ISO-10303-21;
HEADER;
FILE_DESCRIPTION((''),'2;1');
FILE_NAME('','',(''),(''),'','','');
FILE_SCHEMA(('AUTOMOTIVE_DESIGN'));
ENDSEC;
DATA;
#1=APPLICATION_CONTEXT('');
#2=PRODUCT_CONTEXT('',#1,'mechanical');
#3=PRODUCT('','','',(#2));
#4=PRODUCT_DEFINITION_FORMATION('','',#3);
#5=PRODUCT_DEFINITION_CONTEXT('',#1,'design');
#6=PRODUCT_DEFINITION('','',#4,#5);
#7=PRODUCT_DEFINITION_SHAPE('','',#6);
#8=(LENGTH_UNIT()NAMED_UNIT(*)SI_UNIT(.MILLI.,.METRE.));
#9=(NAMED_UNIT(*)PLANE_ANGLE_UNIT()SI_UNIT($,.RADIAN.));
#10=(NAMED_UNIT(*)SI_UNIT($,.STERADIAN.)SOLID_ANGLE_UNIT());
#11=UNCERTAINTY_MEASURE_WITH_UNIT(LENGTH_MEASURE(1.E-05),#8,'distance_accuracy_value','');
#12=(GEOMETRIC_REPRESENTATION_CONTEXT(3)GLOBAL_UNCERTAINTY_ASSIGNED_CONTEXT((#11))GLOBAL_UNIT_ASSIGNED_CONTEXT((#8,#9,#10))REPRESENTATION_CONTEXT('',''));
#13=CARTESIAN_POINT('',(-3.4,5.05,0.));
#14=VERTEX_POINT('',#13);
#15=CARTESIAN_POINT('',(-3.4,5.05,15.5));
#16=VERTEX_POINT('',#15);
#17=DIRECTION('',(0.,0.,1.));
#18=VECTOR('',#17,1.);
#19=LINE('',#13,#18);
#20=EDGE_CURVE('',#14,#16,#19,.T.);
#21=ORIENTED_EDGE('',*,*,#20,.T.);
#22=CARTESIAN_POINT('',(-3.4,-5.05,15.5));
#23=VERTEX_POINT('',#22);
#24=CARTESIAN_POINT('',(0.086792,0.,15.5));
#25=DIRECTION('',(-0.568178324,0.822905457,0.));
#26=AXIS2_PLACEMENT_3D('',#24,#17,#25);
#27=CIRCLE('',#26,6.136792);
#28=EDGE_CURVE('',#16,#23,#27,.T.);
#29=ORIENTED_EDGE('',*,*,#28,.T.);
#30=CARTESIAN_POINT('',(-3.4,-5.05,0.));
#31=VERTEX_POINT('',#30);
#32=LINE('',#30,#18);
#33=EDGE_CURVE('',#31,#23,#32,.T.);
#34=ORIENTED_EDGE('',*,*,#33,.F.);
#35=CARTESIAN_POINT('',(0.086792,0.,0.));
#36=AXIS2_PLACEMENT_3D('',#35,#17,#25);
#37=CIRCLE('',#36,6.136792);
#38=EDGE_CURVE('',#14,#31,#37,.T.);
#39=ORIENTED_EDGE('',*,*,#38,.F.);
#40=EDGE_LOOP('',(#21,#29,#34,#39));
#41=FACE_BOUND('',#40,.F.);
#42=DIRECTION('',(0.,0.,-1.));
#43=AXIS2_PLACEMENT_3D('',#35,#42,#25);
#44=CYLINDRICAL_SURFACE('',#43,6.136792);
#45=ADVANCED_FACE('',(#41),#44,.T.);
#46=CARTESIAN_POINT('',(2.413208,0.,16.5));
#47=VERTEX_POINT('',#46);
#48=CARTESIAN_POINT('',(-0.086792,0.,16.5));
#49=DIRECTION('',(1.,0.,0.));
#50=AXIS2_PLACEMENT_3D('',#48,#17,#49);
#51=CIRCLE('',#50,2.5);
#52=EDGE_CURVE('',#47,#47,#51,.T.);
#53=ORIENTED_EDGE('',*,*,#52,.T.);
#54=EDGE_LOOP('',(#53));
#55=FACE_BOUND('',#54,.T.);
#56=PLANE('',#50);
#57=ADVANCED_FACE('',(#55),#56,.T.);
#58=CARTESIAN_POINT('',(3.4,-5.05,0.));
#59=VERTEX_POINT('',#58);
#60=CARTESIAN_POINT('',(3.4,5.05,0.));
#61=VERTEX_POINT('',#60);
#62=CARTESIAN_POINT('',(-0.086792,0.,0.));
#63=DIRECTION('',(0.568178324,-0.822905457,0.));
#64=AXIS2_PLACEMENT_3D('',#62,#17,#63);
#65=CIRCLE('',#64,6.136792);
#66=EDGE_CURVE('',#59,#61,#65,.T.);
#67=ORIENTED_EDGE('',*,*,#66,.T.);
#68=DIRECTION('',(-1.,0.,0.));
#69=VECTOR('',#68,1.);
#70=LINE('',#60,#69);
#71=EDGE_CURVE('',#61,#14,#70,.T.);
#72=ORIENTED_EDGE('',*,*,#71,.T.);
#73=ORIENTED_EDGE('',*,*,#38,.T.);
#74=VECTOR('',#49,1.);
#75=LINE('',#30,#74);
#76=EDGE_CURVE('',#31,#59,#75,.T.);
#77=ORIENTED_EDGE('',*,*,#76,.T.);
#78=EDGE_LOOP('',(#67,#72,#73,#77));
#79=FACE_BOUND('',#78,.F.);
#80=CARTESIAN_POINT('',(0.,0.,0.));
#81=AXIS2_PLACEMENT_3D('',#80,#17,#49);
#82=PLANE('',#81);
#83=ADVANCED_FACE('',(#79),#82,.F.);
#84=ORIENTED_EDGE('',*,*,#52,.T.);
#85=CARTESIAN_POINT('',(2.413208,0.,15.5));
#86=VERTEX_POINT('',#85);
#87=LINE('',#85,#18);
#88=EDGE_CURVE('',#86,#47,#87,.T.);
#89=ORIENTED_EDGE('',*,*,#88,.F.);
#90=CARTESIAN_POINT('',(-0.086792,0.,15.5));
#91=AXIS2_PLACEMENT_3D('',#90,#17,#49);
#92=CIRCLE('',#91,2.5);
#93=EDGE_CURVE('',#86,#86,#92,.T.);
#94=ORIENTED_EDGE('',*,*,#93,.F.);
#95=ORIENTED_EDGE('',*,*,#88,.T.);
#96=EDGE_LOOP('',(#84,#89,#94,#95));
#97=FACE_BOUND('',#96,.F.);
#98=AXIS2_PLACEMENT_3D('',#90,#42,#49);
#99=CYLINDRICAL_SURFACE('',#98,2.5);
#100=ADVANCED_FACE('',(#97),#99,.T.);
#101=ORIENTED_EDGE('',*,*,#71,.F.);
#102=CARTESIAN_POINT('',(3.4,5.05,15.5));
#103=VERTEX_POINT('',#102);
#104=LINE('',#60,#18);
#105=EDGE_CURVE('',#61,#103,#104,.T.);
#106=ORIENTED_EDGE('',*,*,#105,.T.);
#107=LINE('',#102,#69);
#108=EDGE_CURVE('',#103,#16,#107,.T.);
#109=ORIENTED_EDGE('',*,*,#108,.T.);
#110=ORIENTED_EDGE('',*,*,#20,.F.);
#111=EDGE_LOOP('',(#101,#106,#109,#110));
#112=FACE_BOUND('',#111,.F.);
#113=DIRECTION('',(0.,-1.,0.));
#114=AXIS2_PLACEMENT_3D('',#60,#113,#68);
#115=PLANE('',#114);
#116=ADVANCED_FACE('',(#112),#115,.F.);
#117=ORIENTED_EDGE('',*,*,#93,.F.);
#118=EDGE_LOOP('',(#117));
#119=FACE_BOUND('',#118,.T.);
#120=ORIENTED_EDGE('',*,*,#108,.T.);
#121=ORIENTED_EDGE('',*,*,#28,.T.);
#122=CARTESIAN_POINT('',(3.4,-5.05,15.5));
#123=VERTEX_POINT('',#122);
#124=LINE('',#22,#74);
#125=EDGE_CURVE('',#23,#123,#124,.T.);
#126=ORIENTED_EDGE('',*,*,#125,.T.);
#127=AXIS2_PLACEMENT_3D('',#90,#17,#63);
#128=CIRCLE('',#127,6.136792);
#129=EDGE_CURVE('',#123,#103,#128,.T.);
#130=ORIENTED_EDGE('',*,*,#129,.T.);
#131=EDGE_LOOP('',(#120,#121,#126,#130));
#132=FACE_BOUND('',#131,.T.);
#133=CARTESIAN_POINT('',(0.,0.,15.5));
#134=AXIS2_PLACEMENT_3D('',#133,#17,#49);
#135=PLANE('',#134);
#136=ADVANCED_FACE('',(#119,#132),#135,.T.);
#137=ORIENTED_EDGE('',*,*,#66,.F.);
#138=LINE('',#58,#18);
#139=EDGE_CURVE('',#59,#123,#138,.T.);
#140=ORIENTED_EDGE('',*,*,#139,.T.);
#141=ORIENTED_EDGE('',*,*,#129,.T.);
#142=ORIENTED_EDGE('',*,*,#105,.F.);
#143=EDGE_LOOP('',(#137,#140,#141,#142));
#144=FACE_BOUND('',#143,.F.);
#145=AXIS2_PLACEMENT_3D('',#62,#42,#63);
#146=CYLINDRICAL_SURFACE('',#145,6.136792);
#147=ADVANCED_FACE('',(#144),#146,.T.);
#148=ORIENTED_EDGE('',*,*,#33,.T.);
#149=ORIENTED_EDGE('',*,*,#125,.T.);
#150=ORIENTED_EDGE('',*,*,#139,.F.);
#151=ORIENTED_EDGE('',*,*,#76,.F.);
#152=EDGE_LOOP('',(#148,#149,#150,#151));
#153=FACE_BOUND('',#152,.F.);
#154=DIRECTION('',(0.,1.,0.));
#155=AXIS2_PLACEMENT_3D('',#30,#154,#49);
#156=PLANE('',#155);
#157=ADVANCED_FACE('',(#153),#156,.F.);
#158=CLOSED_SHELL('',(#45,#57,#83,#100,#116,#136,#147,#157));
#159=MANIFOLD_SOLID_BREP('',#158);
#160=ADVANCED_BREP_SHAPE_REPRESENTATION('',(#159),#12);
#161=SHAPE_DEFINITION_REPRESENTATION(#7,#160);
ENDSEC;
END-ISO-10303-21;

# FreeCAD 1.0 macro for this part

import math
import FreeCAD as App
import Part
import Sketcher
Q = App.Units.Quantity

doc = App.newDocument("Part")
params = doc.addObject("Spreadsheet::Sheet", "Params")
for row, (alias, value) in enumerate([
    ("sketch1_width", "6.8 mm"),
    ("pad1_length", "15.5 mm"),
    ("sketch2_diameter", "5 mm"),
    ("pad2_length", "1 mm"),
], start=1):
    params.set(f"A{row}", alias)
    params.set(f"B{row}", "=" + value)
    params.setAlias(f"B{row}", alias)

body = doc.addObject("PartDesign::Body", "Body")

sketch1 = body.newObject("Sketcher::SketchObject", "Sketch")
sketch1.AttachmentSupport = (doc.getObject("XY_Plane"), [""])
sketch1.MapMode = "FlatFace"
sketch1.addGeometry([
    Part.ArcOfCircle(Part.Circle(App.Vector(-0.086792, 0, 0), App.Vector(0, 0, 1), 6.136792), math.radians(-55.376708), math.radians(55.376708)),
    Part.LineSegment(App.Vector(3.4, 5.05, 0), App.Vector(-3.4, 5.05, 0)),
    Part.ArcOfCircle(Part.Circle(App.Vector(0.086792, 0, 0), App.Vector(0, 0, 1), 6.136792), math.radians(124.623292), math.radians(235.376708)),
    Part.LineSegment(App.Vector(-3.4, -5.05, 0), App.Vector(3.4, -5.05, 0)),
], False)
sketch1.addConstraint([
    Sketcher.Constraint("Coincident", 0, 2, 1, 1),
    Sketcher.Constraint("Coincident", 1, 2, 2, 1),
    Sketcher.Constraint("Coincident", 2, 2, 3, 1),
    Sketcher.Constraint("Coincident", 3, 2, 0, 1),
    Sketcher.Constraint("Horizontal", 1),
    Sketcher.Constraint("Horizontal", 3),
    Sketcher.Constraint("Equal", 0, 2),
    Sketcher.Constraint("Symmetric", 0, 3, 2, 3, -1, 1),
    Sketcher.Constraint("Symmetric", 1, 2, 2, 2, -1),
    Sketcher.Constraint("DistanceX", 1, 2, 1, 1, Q("6.8 mm")),
    Sketcher.Constraint("DistanceY", 2, 2, 1, 2, Q("10.1 mm")),
    Sketcher.Constraint("Radius", 0, Q("6.136792 mm")),
])
sketch1.setExpression("Constraints[9]", "Params.sketch1_width")
pad1 = body.newObject("PartDesign::Pad", "Pad")
pad1.Profile = sketch1
pad1.setExpression("Length", "Params.pad1_length")

sketch2 = body.newObject("Sketcher::SketchObject", "Sketch001")
sketch2.AttachmentSupport = (doc.getObject("XY_Plane"), [""])
sketch2.MapMode = "FlatFace"
sketch2.AttachmentOffset = App.Placement(App.Vector(0, 0, 15.5), App.Rotation())
sketch2.addGeometry(Part.Circle(App.Vector(-0.086792, 0, 0), App.Vector(0, 0, 1), 2.5), False)
sketch2.addConstraint([
    Sketcher.Constraint("PointOnObject", 0, 3, -1),
    Sketcher.Constraint("Diameter", 0, Q("5 mm")),
    Sketcher.Constraint("DistanceX", 0, 3, -1, 1, Q("0.086792 mm")),
])
sketch2.setExpression("Constraints[1]", "Params.sketch2_diameter")
pad2 = body.newObject("PartDesign::Pad", "Pad001")
pad2.Profile = sketch2
pad2.setExpression("Length", "Params.pad2_length")

doc.recompute()
